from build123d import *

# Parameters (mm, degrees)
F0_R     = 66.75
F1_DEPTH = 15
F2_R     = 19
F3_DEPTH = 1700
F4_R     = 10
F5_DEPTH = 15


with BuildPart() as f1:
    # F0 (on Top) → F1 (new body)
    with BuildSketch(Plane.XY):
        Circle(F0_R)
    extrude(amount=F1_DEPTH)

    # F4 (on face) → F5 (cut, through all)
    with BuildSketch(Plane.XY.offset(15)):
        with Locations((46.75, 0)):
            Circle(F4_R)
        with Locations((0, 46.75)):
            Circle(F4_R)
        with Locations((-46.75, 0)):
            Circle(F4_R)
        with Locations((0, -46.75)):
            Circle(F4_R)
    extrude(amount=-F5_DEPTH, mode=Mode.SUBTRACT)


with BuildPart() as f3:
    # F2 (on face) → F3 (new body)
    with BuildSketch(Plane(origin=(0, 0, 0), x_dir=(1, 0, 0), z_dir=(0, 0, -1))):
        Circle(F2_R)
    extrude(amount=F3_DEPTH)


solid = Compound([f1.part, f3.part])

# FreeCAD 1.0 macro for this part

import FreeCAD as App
import Part
import Sketcher

doc = App.newDocument("Part")
body = doc.addObject("PartDesign::Body", "Body")

# Sketch on XY plane
sketch1 = body.newObject("Sketcher::SketchObject", "Sketch")
sketch1.AttachmentSupport = (doc.getObject("XY_Plane"), [""])
sketch1.MapMode = "FlatFace"
sketch1.addGeometry(Part.Circle(App.Vector(0, 0, 0), App.Vector(0, 0, 1), 66.75), False)
sketch1.addConstraint([
    Sketcher.Constraint("Coincident", 0, 3, -1, 1),
    Sketcher.Constraint("Diameter", 0, 133.5),
])
pad1 = body.newObject("PartDesign::Pad", "Pad")
pad1.Profile = sketch1
pad1.Length = 15

# Sketch on XY plane
sketch2 = body.newObject("Sketcher::SketchObject", "Sketch001")
sketch2.AttachmentSupport = (doc.getObject("XY_Plane"), [""])
sketch2.MapMode = "FlatFace"
sketch2.AttachmentOffset = App.Placement(App.Vector(0, 0, 15), App.Rotation())
sketch2.addGeometry([
    Part.Circle(App.Vector(46.75, 0, 0), App.Vector(0, 0, 1), 10),
    Part.Circle(App.Vector(0, 46.75, 0), App.Vector(0, 0, 1), 10),
    Part.Circle(App.Vector(-46.75, 0, 0), App.Vector(0, 0, 1), 10),
    Part.Circle(App.Vector(0, -46.75, 0), App.Vector(0, 0, 1), 10),
], False)
sketch2.addConstraint([
    Sketcher.Constraint("Equal", 0, 1),
    Sketcher.Constraint("Equal", 1, 2),
    Sketcher.Constraint("Equal", 2, 3),
    Sketcher.Constraint("Symmetric", 0, 3, 2, 3, -1, 1),
    Sketcher.Constraint("Symmetric", 1, 3, 3, 3, -1, 1),
    Sketcher.Constraint("PointOnObject", 0, 3, -1),
    Sketcher.Constraint("PointOnObject", 1, 3, -2),
    Sketcher.Constraint("Diameter", 0, 20.0),
    Sketcher.Constraint("DistanceX", 2, 3, 0, 3, 93.5),
    Sketcher.Constraint("DistanceY", 3, 3, 1, 3, 93.5),
])
pocket1 = body.newObject("PartDesign::Pocket", "Pocket")
pocket1.Profile = sketch2
pocket1.Type = "ThroughAll"
body2 = doc.addObject("PartDesign::Body", "Body001")

# Sketch on XY plane
sketch3 = body2.newObject("Sketcher::SketchObject", "Sketch002")
sketch3.AttachmentSupport = (doc.getObject("XY_Plane001"), [""])
sketch3.MapMode = "FlatFace"
sketch3.addGeometry(Part.Circle(App.Vector(0, 0, 0), App.Vector(0, 0, 1), 19), False)
sketch3.addConstraint([
    Sketcher.Constraint("Coincident", 0, 3, -1, 1),
    Sketcher.Constraint("Diameter", 0, 38.0),
])
pad2 = body2.newObject("PartDesign::Pad", "Pad001")
pad2.Profile = sketch3
pad2.Length = 1700
pad2.Reversed = True

doc.recompute()
